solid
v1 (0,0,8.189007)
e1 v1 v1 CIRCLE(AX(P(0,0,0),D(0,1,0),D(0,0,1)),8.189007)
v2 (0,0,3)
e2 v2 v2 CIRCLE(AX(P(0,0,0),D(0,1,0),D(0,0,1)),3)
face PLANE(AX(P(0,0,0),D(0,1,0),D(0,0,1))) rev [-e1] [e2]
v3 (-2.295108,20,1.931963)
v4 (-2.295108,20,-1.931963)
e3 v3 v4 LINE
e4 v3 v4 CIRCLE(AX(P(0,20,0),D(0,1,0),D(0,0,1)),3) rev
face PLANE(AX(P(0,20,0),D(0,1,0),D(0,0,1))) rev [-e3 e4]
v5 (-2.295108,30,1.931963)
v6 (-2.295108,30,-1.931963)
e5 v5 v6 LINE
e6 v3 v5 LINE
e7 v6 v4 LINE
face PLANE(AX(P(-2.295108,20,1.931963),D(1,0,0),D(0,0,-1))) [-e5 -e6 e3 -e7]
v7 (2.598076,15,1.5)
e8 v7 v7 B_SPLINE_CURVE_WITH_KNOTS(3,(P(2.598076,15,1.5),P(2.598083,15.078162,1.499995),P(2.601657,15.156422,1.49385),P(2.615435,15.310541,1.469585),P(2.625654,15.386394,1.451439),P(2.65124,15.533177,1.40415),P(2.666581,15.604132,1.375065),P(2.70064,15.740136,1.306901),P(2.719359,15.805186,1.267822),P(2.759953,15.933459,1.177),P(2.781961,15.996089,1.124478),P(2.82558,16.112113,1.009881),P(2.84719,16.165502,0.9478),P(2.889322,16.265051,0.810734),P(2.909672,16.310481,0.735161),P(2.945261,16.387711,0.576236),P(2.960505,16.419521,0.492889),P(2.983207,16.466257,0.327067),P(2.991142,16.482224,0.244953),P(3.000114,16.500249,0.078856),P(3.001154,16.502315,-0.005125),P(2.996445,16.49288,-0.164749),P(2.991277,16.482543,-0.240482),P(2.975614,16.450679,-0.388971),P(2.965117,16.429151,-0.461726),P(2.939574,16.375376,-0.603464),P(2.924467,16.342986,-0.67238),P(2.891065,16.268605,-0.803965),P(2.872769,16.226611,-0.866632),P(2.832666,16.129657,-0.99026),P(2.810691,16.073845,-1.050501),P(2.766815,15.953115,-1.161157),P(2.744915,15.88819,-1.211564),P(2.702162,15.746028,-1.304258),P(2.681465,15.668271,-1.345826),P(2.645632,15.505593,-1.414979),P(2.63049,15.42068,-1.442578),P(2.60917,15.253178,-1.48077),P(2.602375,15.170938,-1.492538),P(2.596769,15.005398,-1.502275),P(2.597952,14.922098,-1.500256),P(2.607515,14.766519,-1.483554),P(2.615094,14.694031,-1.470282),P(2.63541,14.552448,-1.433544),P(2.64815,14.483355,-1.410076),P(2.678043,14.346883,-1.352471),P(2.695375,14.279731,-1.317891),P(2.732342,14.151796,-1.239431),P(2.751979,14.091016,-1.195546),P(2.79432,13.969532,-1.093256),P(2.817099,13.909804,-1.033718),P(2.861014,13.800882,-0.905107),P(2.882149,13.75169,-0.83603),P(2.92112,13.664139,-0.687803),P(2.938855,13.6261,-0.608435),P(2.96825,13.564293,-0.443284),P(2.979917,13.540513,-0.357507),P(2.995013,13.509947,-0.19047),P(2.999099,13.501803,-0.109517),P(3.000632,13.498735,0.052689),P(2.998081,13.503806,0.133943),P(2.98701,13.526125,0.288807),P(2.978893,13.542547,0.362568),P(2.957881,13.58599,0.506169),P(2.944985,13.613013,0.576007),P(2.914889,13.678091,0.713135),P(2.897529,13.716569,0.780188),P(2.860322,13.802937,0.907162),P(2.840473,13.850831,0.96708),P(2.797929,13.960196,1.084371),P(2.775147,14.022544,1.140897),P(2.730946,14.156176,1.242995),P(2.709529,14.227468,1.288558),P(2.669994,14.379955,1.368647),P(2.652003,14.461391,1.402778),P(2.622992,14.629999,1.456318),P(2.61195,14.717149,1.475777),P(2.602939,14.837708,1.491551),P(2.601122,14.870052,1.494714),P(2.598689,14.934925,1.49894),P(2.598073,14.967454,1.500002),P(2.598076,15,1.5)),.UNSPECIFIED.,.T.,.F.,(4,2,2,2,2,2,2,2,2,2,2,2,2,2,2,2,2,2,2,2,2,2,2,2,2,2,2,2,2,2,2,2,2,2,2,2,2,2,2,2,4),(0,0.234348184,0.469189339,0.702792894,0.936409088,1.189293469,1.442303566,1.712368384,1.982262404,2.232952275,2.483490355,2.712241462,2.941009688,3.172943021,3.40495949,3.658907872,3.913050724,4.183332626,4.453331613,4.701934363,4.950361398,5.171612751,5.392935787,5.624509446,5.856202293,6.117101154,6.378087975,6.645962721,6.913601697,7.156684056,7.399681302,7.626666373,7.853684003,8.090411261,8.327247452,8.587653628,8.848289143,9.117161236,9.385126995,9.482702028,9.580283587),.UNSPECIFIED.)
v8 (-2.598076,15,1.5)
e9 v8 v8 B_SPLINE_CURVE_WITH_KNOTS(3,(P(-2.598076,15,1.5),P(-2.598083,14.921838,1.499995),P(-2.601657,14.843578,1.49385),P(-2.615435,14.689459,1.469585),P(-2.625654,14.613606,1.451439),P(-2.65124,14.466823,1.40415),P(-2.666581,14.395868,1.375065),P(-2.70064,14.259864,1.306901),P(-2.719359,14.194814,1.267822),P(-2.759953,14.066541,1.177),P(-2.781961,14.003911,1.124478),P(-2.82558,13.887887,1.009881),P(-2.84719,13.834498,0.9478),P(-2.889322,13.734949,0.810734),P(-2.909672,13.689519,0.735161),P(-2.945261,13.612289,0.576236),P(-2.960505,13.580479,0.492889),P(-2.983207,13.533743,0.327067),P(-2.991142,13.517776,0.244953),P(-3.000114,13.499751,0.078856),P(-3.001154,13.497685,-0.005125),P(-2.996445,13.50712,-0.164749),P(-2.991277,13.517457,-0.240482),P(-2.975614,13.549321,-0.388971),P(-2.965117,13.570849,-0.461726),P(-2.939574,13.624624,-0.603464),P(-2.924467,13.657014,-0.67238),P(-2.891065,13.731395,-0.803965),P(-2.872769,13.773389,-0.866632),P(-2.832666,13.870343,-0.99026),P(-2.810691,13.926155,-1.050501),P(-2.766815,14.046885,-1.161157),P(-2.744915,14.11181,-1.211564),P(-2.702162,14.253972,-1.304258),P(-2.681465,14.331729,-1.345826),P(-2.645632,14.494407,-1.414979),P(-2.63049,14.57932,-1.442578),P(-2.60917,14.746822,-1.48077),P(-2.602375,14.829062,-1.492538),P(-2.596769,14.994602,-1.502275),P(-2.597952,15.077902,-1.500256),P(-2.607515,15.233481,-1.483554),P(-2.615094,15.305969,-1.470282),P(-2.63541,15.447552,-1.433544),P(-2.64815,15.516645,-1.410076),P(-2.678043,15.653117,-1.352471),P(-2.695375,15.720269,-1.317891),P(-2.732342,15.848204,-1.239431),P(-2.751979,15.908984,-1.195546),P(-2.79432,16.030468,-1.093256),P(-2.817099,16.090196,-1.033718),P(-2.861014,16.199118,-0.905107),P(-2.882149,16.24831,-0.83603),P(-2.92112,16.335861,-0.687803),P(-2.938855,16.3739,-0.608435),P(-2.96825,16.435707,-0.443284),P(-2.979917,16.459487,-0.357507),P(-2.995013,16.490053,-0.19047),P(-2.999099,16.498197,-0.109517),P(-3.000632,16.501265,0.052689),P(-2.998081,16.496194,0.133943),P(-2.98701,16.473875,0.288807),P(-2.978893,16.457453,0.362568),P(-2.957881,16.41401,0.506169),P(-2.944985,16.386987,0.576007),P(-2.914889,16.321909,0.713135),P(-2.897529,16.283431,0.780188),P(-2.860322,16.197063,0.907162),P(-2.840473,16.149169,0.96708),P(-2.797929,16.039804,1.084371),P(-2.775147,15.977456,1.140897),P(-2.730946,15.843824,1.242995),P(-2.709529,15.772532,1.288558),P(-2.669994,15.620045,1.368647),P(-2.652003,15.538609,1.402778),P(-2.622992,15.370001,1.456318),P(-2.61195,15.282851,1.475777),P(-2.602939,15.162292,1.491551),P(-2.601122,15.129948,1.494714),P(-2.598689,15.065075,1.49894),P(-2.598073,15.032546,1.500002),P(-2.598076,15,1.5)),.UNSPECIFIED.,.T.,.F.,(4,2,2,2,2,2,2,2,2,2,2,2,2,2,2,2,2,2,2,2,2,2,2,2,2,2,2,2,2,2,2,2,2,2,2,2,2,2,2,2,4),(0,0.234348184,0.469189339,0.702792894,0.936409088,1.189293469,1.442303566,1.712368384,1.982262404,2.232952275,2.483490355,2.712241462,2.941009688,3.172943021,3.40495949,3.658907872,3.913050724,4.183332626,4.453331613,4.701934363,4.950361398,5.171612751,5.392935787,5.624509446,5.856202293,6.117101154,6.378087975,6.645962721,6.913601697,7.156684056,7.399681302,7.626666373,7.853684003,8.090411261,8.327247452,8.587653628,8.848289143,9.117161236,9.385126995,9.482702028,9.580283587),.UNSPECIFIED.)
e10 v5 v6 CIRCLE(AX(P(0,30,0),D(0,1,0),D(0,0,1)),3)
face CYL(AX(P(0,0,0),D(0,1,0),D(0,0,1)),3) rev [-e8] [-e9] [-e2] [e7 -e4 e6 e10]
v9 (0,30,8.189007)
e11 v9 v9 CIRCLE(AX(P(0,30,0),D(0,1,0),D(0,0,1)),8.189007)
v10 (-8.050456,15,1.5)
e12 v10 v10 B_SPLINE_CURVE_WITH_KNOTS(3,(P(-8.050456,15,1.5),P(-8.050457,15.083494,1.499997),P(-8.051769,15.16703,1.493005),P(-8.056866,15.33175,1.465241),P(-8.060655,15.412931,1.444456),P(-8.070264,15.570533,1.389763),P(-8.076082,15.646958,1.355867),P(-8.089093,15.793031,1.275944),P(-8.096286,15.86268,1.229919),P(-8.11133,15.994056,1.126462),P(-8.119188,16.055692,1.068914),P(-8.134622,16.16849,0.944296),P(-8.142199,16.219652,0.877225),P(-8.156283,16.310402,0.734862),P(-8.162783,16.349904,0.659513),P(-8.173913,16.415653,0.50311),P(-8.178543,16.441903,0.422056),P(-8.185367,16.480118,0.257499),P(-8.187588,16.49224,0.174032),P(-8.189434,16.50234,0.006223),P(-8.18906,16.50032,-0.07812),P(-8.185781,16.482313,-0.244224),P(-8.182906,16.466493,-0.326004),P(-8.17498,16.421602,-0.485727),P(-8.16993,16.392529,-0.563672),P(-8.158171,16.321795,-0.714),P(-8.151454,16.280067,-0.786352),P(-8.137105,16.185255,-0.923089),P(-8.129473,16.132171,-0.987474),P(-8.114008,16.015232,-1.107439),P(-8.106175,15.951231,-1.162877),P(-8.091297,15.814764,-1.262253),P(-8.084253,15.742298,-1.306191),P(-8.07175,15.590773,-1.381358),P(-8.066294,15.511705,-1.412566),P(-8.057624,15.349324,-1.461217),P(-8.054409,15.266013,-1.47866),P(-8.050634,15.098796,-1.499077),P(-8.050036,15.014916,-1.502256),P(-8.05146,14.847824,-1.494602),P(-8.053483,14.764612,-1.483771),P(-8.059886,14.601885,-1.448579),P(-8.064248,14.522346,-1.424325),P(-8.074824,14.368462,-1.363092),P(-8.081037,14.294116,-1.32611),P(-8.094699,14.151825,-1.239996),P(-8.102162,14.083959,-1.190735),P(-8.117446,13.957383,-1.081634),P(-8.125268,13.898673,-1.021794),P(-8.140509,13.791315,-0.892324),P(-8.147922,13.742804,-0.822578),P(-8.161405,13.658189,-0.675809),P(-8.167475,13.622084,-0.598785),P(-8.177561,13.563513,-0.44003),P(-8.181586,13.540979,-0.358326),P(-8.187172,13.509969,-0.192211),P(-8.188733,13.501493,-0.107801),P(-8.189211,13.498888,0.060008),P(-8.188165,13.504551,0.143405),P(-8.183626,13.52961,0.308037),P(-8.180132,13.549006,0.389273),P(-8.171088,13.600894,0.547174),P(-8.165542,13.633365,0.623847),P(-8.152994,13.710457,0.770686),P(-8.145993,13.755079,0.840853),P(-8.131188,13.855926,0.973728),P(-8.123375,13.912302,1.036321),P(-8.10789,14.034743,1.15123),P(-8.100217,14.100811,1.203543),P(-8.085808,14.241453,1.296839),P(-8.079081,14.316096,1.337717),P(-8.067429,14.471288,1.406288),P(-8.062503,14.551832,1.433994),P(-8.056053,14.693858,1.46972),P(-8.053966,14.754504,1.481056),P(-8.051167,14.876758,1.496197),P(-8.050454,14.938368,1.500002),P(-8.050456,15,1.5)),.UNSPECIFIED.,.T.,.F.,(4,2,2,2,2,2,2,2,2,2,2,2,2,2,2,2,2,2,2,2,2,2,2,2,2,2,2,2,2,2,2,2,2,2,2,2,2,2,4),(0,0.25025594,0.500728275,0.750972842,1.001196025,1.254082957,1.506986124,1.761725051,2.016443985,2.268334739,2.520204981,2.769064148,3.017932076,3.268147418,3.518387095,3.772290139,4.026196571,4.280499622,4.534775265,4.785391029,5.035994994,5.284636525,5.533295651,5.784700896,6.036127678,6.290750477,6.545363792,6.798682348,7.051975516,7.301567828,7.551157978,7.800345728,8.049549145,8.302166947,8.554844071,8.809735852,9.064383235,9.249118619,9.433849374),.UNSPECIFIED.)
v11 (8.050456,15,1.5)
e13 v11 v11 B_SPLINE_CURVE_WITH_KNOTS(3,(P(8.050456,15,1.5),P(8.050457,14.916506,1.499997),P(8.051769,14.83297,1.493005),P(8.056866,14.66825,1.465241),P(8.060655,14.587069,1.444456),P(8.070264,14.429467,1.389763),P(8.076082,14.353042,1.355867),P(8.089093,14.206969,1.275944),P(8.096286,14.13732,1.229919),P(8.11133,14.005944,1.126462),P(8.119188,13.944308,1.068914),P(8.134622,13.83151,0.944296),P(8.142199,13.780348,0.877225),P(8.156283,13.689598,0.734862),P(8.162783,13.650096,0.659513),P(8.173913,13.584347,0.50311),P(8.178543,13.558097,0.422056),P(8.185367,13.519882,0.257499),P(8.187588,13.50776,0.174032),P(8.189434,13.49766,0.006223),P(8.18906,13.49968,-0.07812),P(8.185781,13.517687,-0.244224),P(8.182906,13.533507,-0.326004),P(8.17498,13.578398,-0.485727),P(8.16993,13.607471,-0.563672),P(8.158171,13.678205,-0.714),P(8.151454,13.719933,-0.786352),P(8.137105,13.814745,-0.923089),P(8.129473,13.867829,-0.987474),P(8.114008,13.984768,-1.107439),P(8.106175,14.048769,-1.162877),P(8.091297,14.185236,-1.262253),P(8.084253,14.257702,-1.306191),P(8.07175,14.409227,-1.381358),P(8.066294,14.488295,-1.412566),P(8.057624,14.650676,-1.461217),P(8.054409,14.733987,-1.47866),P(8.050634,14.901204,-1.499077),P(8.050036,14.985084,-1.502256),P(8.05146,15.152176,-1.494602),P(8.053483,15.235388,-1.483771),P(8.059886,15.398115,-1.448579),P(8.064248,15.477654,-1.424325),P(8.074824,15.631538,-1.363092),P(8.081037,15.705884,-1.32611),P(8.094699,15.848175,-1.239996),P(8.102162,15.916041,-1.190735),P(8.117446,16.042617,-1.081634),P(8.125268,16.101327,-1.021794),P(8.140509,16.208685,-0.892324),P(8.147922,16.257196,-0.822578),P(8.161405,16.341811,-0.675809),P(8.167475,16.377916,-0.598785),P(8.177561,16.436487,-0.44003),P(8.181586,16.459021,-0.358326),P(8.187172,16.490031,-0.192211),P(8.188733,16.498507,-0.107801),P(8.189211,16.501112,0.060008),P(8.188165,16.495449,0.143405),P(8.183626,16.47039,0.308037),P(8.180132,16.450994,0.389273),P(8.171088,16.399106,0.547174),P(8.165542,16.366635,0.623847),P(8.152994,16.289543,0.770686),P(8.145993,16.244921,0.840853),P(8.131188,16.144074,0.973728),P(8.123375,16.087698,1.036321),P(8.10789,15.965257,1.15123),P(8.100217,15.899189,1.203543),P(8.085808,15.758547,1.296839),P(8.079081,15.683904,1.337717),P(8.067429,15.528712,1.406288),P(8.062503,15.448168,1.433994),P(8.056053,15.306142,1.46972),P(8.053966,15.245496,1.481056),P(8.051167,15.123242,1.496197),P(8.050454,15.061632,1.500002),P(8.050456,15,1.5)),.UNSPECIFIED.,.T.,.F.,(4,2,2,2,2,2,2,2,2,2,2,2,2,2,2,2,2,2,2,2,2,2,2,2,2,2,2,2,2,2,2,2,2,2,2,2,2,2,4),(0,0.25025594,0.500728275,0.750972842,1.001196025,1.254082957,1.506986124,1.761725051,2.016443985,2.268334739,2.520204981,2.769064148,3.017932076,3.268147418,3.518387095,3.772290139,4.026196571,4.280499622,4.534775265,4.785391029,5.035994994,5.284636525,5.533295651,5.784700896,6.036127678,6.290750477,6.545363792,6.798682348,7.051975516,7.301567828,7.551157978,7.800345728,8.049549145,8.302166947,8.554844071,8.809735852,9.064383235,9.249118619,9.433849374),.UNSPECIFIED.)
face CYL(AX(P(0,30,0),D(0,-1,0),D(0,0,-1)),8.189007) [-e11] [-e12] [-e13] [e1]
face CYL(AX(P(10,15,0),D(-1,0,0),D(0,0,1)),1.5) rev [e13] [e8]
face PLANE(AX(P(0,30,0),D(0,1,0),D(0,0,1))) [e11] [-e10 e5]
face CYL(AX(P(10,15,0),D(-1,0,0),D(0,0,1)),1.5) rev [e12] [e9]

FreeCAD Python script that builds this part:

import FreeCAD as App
import Part
import Sketcher

V = App.Vector

doc = App.newDocument("Part")
body = doc.addObject("PartDesign::Body", "Body")

sketch1 = doc.addObject("Sketcher::SketchObject", "Sketch")
body.addObject(sketch1)
sketch1.AttachmentSupport = (doc.XZ_Plane, [""])
sketch1.MapMode = "FlatFace"
sketch1.addGeometry(Part.Circle(V(0, 0, 0), V(0, 0, 1), 8), False)
sketch1.addConstraint(Sketcher.Constraint("Coincident", 0, 3, -1, 1))
sketch1.addConstraint(Sketcher.Constraint("Diameter", 0, 16.378014))
pad1 = doc.addObject("PartDesign::Pad", "Pad")
body.addObject(pad1)
pad1.Profile = sketch1
pad1.Length = 30
pad1.Reversed = True

sketch2 = doc.addObject("Sketcher::SketchObject", "Sketch001")
body.addObject(sketch2)
sketch2.AttachmentSupport = (doc.XZ_Plane, [""])
sketch2.MapMode = "FlatFace"
sketch2.AttachmentOffset = App.Placement(V(0, 0, -30), App.Rotation())
sketch2.addGeometry(Part.Circle(V(0, 0, 0), V(0, 0, 1), 3), False)
sketch2.addConstraint(Sketcher.Constraint("Coincident", 0, 3, -1, 1))
sketch2.addConstraint(Sketcher.Constraint("Diameter", 0, 6.0))
pocket1 = doc.addObject("PartDesign::Pocket", "Pocket")
body.addObject(pocket1)
pocket1.Profile = sketch2
pocket1.Length = 30
pocket1.Reversed = True

sketch3 = doc.addObject("Sketcher::SketchObject", "Sketch002")
body.addObject(sketch3)
sketch3.AttachmentSupport = (doc.XZ_Plane, [""])
sketch3.MapMode = "FlatFace"
sketch3.AttachmentOffset = App.Placement(V(0, 0, -30), App.Rotation())
sketch3.addGeometry(Part.LineSegment(V(-4.1, -2.3, 0), V(-4.1, 1.9, 0)), False)
sketch3.addGeometry(Part.LineSegment(V(-4.1, 1.9, 0), V(-2.3, 1.9, 0)), False)
sketch3.addGeometry(Part.LineSegment(V(-2.3, 1.9, 0), V(-2.3, -2.3, 0)), False)
sketch3.addGeometry(Part.LineSegment(V(-2.3, -2.3, 0), V(-4.1, -2.3, 0)), False)
sketch3.addConstraint(Sketcher.Constraint("Coincident", 0, 2, 1, 1))
sketch3.addConstraint(Sketcher.Constraint("Coincident", 1, 2, 2, 1))
sketch3.addConstraint(Sketcher.Constraint("Coincident", 2, 2, 3, 1))
sketch3.addConstraint(Sketcher.Constraint("Coincident", 3, 2, 0, 1))
sketch3.addConstraint(Sketcher.Constraint("Vertical", 0))
sketch3.addConstraint(Sketcher.Constraint("Horizontal", 1))
sketch3.addConstraint(Sketcher.Constraint("Vertical", 2))
sketch3.addConstraint(Sketcher.Constraint("Horizontal", 3))
sketch3.addConstraint(Sketcher.Constraint("DistanceX", 1, 1, 1, 2, 1.839213))
sketch3.addConstraint(Sketcher.Constraint("DistanceY", 0, 1, 0, 2, 4.190653))
sketch3.addConstraint(Sketcher.Constraint("DistanceX", 0, 2, -1, 1, 4.13432))
sketch3.addConstraint(Sketcher.Constraint("DistanceY", 2, 2, -1, 1, 2.25869))
pad2 = doc.addObject("PartDesign::Pad", "Pad001")
body.addObject(pad2)
pad2.Profile = sketch3
pad2.Length = 10

sketch4 = doc.addObject("Sketcher::SketchObject", "Sketch003")
body.addObject(sketch4)
sketch4.AttachmentSupport = (doc.YZ_Plane, [""])
sketch4.MapMode = "FlatFace"
sketch4.addGeometry(Part.Circle(V(15, 0, 0), V(0, 0, 1), 1.5), False)
sketch4.addConstraint(Sketcher.Constraint("PointOnObject", 0, 3, -1))
sketch4.addConstraint(Sketcher.Constraint("Diameter", 0, 3.0))
sketch4.addConstraint(Sketcher.Constraint("DistanceX", -1, 1, 0, 3, 15.0))
pocket2 = doc.addObject("PartDesign::Pocket", "Pocket001")
body.addObject(pocket2)
pocket2.Profile = sketch4
pocket2.Type = "ThroughAll"
pocket2.Midplane = True

doc.recompute()
